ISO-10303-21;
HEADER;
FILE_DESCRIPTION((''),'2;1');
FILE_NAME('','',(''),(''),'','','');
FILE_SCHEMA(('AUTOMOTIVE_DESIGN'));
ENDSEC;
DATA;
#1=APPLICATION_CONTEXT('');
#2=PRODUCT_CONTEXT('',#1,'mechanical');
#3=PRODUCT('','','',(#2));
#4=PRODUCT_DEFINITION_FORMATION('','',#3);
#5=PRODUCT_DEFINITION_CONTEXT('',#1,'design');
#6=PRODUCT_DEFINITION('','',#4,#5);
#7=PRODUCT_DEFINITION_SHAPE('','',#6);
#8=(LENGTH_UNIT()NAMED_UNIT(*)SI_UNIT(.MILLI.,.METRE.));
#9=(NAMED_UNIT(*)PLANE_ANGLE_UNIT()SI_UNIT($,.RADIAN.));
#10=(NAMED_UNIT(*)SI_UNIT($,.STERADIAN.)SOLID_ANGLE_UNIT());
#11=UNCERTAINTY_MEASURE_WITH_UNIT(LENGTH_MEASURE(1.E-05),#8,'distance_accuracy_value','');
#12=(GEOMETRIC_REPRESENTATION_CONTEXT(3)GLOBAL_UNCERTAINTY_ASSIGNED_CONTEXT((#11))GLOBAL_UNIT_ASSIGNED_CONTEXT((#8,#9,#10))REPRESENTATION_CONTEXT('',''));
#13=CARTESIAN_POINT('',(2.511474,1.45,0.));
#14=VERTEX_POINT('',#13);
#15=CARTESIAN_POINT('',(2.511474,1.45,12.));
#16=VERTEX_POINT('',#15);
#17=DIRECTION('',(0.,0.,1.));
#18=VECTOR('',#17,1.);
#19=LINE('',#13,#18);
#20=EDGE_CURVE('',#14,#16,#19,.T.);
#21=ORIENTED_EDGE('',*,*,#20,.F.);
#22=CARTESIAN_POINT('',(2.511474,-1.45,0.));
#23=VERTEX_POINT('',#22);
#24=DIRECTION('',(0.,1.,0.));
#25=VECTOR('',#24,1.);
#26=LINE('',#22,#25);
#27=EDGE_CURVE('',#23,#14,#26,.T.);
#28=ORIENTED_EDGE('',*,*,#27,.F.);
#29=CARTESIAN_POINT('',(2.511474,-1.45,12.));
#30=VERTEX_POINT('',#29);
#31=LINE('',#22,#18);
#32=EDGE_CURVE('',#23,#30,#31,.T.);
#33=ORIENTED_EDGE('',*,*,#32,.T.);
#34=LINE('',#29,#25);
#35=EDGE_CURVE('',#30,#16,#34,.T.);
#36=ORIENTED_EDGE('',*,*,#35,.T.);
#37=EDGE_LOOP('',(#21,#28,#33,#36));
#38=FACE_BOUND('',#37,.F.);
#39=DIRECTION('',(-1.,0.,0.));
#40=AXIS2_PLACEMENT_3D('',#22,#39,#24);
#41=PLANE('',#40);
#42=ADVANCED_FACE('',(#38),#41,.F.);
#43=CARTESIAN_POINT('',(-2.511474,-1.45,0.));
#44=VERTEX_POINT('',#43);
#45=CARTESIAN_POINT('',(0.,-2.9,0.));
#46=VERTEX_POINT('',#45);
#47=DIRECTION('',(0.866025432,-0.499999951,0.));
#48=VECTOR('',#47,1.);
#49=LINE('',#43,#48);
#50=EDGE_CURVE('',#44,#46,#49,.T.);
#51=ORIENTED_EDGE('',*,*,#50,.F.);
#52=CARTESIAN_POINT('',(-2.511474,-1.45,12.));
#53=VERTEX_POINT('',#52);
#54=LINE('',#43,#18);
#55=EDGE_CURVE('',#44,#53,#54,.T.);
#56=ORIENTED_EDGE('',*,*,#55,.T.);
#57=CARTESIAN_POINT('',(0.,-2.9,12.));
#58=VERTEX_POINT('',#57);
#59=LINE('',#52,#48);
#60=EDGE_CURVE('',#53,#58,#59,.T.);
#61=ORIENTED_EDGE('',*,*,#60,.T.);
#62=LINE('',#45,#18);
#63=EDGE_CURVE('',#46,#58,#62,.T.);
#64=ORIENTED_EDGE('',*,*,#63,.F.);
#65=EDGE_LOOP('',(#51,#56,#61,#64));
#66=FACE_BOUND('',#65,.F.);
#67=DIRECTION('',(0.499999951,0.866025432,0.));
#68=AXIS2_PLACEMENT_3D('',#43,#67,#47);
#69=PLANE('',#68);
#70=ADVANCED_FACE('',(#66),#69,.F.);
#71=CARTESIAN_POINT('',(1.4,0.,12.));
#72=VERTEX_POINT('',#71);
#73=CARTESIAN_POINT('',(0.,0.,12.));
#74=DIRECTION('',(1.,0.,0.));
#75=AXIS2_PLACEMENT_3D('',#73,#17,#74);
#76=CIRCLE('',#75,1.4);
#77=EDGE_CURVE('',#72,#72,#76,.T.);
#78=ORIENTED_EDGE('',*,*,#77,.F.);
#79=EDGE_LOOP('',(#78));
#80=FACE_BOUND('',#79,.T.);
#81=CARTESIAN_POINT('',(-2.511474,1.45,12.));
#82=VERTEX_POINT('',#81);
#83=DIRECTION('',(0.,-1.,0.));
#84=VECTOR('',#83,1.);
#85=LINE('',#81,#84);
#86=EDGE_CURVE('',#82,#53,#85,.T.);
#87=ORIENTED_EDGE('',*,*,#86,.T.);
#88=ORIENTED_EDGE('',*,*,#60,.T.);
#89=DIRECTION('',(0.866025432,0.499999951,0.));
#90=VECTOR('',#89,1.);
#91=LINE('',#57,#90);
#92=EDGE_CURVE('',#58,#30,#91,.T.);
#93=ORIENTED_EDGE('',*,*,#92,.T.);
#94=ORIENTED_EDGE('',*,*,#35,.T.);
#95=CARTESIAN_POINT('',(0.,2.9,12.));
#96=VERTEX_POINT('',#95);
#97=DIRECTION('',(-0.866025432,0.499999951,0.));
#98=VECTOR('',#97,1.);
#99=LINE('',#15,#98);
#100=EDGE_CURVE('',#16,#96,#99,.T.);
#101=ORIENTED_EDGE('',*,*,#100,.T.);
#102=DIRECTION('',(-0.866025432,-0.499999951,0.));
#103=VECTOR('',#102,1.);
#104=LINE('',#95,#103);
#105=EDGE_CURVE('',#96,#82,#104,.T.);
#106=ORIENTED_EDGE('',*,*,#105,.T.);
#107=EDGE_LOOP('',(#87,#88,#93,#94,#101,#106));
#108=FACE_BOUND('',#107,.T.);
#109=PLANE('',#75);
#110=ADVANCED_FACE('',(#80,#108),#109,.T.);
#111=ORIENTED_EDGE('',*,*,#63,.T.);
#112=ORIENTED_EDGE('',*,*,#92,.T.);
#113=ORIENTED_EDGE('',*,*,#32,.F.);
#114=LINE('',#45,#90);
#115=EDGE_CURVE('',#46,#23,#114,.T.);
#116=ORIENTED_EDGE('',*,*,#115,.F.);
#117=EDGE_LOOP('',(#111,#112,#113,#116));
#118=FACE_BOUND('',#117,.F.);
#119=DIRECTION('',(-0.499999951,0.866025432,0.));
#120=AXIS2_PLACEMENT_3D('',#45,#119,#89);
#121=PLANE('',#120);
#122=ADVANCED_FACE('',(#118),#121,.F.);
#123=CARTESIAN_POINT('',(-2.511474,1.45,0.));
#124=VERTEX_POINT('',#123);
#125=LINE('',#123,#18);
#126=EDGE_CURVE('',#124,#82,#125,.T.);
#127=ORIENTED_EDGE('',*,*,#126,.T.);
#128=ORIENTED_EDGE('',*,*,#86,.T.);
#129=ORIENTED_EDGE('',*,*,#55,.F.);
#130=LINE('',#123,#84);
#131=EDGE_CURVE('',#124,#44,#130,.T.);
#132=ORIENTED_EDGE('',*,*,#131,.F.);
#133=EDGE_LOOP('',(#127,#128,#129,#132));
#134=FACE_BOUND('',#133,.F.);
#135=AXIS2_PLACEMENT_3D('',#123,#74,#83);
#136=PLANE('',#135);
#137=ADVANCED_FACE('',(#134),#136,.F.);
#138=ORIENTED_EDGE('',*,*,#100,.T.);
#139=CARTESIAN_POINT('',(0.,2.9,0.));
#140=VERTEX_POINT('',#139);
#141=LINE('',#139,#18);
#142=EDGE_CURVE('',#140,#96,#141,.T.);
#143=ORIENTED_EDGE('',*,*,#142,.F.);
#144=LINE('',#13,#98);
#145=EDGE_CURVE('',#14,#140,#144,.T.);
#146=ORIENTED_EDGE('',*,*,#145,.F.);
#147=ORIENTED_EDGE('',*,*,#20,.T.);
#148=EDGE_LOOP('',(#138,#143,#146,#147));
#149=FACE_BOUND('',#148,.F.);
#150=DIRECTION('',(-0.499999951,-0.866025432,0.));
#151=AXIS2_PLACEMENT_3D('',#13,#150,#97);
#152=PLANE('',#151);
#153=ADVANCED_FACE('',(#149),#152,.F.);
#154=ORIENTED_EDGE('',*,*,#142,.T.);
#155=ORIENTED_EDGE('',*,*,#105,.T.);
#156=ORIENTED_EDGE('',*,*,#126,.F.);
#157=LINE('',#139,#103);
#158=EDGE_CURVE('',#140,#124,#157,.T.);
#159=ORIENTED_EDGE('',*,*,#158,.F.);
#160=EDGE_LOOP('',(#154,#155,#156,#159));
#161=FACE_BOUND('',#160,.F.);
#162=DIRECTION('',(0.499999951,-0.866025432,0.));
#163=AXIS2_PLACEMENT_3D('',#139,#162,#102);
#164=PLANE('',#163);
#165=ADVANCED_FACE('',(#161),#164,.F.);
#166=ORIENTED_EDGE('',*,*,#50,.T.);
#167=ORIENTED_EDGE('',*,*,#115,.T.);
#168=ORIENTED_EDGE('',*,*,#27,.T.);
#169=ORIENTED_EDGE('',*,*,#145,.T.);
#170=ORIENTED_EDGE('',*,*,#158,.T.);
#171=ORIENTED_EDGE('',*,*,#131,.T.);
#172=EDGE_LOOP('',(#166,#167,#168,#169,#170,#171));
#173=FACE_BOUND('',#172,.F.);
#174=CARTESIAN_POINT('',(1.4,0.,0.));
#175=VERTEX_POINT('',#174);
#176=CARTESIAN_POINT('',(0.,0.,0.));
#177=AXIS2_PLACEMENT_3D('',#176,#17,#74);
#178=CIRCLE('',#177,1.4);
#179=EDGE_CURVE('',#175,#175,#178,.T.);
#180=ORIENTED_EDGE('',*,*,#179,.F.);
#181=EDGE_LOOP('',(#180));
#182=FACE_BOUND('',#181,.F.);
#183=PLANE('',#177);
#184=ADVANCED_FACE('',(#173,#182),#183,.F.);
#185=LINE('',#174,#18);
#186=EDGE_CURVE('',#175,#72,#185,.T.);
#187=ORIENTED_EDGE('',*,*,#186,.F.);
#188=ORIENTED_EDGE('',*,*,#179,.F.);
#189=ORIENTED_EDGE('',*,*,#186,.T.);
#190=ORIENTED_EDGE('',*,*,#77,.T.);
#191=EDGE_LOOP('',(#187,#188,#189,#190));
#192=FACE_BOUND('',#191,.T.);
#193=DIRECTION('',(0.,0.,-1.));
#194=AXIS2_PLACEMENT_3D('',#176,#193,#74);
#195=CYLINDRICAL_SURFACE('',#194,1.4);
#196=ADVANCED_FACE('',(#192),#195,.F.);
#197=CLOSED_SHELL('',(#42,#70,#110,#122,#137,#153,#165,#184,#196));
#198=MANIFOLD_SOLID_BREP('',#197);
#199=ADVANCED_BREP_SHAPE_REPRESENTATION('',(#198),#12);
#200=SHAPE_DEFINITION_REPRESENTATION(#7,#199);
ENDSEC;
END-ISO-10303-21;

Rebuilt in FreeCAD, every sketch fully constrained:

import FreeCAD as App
import Part
import Sketcher
Q = App.Units.Quantity

doc = App.newDocument("Part")
params = doc.addObject("Spreadsheet::Sheet", "Params")
for row, (alias, value) in enumerate([
    ("sketch1_diameter", "2.8 mm"),
    ("sketch1_height", "2.9 mm"),
    ("sketch1_length", "2.9 mm"),
    ("pad1_length", "12 mm"),
], start=1):
    params.set(f"A{row}", alias)
    params.set(f"B{row}", "=" + value)
    params.setAlias(f"B{row}", alias)

body = doc.addObject("PartDesign::Body", "Body")

# Sketch on XY plane
sketch1 = doc.addObject("Sketcher::SketchObject", "Sketch")
body.addObject(sketch1)
sketch1.AttachmentSupport = (doc.XY_Plane, [""])
sketch1.MapMode = "FlatFace"
sketch1.addGeometry([
    Part.LineSegment(App.Vector(2.5, 1.4, 0), App.Vector(0, 2.9, 0)),  # 0
    Part.LineSegment(App.Vector(0, 2.9, 0), App.Vector(-2.5, 1.4, 0)),  # 1
    Part.LineSegment(App.Vector(-2.5, 1.4, 0), App.Vector(-2.5, -1.4, 0)),  # 2
    Part.LineSegment(App.Vector(-2.5, -1.4, 0), App.Vector(0, -2.9, 0)),  # 3
    Part.LineSegment(App.Vector(0, -2.9, 0), App.Vector(2.5, -1.4, 0)),  # 4
    Part.LineSegment(App.Vector(2.5, -1.4, 0), App.Vector(2.5, 1.4, 0)),  # 5
    Part.Circle(App.Vector(0, 0, 0), App.Vector(0, 0, 1), 1.4),  # 6
], False)
sketch1.addConstraint([
    Sketcher.Constraint("Coincident", 0, 2, 1, 1),
    Sketcher.Constraint("Coincident", 1, 2, 2, 1),
    Sketcher.Constraint("Coincident", 2, 2, 3, 1),
    Sketcher.Constraint("Coincident", 3, 2, 4, 1),
    Sketcher.Constraint("Coincident", 4, 2, 5, 1),
    Sketcher.Constraint("Coincident", 5, 2, 0, 1),
    Sketcher.Constraint("Vertical", 2),
    Sketcher.Constraint("Vertical", 5),
    Sketcher.Constraint("Coincident", 6, 3, -1, 1),
    Sketcher.Constraint("Symmetric", 0, 2, 3, 2, -1, 1),
    Sketcher.Constraint("Symmetric", 1, 2, 4, 2, -1, 1),
    Sketcher.Constraint("PointOnObject", 0, 2, -2),
    Sketcher.Constraint("Parallel", 0, 3),
    Sketcher.Constraint("Horizontal", 2, 2, 4, 2),
    Sketcher.Constraint("Diameter", 6, Q("2.8 mm")),
    Sketcher.Constraint("Angle", 0, Q("150.000003 deg")),
    Sketcher.Constraint("DistanceY", 2, 2, 2, 1, Q("2.9 mm")),
    Sketcher.Constraint("Distance", 0, Q("2.9 mm")),
])
sketch1.setExpression("Constraints[14]", "Params.sketch1_diameter")
sketch1.setExpression("Constraints[16]", "Params.sketch1_height")
sketch1.setExpression("Constraints[17]", "Params.sketch1_length")
pad1 = doc.addObject("PartDesign::Pad", "Pad")
body.addObject(pad1)
pad1.Profile = sketch1
pad1.setExpression("Length", "Params.pad1_length")

doc.recompute()
